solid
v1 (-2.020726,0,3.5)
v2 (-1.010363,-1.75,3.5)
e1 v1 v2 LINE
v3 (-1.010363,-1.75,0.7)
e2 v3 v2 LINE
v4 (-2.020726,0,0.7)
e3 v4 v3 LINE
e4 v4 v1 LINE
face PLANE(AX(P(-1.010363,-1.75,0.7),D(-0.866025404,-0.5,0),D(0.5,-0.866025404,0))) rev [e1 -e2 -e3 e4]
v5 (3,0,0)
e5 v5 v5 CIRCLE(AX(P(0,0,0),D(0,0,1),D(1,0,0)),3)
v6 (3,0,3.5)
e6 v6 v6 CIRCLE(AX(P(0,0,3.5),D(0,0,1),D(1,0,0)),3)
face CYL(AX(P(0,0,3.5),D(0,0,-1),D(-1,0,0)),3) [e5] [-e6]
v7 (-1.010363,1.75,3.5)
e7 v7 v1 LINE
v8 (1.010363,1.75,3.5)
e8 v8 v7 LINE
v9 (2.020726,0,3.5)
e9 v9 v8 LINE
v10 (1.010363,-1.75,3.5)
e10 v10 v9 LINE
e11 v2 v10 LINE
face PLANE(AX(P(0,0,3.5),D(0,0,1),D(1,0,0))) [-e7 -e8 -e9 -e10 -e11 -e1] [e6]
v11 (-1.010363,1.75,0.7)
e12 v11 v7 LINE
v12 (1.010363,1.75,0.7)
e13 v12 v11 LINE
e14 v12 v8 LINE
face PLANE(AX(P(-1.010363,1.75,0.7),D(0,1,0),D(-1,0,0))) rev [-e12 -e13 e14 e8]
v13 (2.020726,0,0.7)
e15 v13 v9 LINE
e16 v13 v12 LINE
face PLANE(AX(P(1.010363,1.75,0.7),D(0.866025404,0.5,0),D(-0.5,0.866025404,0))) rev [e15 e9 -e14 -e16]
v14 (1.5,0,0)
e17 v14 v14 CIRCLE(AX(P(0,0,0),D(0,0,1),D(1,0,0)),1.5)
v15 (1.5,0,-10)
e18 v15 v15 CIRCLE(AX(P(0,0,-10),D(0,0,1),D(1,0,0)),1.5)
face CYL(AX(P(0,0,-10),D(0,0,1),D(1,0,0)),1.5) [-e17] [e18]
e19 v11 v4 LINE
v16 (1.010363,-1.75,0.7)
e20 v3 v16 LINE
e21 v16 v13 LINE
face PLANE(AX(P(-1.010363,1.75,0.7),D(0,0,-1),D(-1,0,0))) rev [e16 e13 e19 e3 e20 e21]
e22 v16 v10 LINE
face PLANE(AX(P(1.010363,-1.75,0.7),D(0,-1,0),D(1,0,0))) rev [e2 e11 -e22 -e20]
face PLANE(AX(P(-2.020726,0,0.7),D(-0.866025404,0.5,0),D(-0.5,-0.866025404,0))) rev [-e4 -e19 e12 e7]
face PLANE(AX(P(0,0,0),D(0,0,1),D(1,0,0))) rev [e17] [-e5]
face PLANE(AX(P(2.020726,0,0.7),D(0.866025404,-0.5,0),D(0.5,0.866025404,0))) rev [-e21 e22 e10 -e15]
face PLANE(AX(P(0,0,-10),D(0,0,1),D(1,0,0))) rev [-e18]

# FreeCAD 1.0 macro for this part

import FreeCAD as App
import Part
import Sketcher
from FreeCAD import Vector
Q = App.Units.Quantity


def add_polygon(sketch, points):
    """Adds a closed chain of lines whose ends are joined by coincident constraints."""
    first, n = sketch.GeometryCount, len(points)
    for a, b in zip(points, points[1:] + points[:1]):
        sketch.addGeometry(Part.LineSegment(App.Vector(*a, 0), App.Vector(*b, 0)), False)
    for i in range(n):
        sketch.addConstraint(Sketcher.Constraint("Coincident", first + i, 2, first + (i + 1) % n, 1))

doc = App.newDocument("Part")
body = doc.addObject("PartDesign::Body", "Body")

# Sketch on XY plane
sketch1 = body.newObject("Sketcher::SketchObject", "Sketch")
sketch1.AttachmentSupport = (doc.getObject("XY_Plane"), [""])
sketch1.MapMode = "FlatFace"
sketch1.addGeometry(Part.Circle(Vector(0, 0, 0), Vector(0, 0, 1), 3), False)
sketch1.addConstraint([
    Sketcher.Constraint("Coincident", 0, 3, -1, 1),
    Sketcher.Constraint("Diameter", 0, Q("6 mm")),
])
pad1 = body.newObject("PartDesign::Pad", "Pad")
pad1.Profile = sketch1
pad1.Length = 3.5

# Sketch on XY plane
sketch2 = body.newObject("Sketcher::SketchObject", "Sketch001")
sketch2.AttachmentSupport = (doc.getObject("XY_Plane"), [""])
sketch2.MapMode = "FlatFace"
sketch2.AttachmentOffset = App.Placement(Vector(0, 0, 3.5), App.Rotation())
add_polygon(sketch2, [(1, 1.8), (-1, 1.8), (-2, 0), (-1, -1.8), (1, -1.8), (2, 0)])  # lines 0-5
sketch2.addConstraint([
    Sketcher.Constraint("Horizontal", 0),
    Sketcher.Constraint("Horizontal", 3),
    Sketcher.Constraint("Symmetric", 0, 2, 3, 2, -1, 1),
    Sketcher.Constraint("Symmetric", 1, 2, 4, 2, -1, 1),
    Sketcher.Constraint("PointOnObject", 1, 2, -1),
    Sketcher.Constraint("Parallel", 2, 5),
    Sketcher.Constraint("Vertical", 0, 2, 2, 2),
    Sketcher.Constraint("Angle", 1, Q("-120 deg")),
    Sketcher.Constraint("DistanceY", 2, 2, 0, 2, Q("3.5 mm")),
    Sketcher.Constraint("DistanceX", 0, 2, 0, 1, Q("2.020726 mm")),
])
pocket1 = body.newObject("PartDesign::Pocket", "Pocket")
pocket1.Profile = sketch2
pocket1.Length = 2.8

# Sketch on XY plane
sketch3 = body.newObject("Sketcher::SketchObject", "Sketch002")
sketch3.AttachmentSupport = (doc.getObject("XY_Plane"), [""])
sketch3.MapMode = "FlatFace"
sketch3.addGeometry(Part.Circle(Vector(0, 0, 0), Vector(0, 0, 1), 1.5), False)
sketch3.addConstraint([
    Sketcher.Constraint("Coincident", 0, 3, -1, 1),
    Sketcher.Constraint("Diameter", 0, Q("3 mm")),
])
pad2 = body.newObject("PartDesign::Pad", "Pad001")
pad2.Profile = sketch3
pad2.Length = 10
pad2.Reversed = True

doc.recompute()
